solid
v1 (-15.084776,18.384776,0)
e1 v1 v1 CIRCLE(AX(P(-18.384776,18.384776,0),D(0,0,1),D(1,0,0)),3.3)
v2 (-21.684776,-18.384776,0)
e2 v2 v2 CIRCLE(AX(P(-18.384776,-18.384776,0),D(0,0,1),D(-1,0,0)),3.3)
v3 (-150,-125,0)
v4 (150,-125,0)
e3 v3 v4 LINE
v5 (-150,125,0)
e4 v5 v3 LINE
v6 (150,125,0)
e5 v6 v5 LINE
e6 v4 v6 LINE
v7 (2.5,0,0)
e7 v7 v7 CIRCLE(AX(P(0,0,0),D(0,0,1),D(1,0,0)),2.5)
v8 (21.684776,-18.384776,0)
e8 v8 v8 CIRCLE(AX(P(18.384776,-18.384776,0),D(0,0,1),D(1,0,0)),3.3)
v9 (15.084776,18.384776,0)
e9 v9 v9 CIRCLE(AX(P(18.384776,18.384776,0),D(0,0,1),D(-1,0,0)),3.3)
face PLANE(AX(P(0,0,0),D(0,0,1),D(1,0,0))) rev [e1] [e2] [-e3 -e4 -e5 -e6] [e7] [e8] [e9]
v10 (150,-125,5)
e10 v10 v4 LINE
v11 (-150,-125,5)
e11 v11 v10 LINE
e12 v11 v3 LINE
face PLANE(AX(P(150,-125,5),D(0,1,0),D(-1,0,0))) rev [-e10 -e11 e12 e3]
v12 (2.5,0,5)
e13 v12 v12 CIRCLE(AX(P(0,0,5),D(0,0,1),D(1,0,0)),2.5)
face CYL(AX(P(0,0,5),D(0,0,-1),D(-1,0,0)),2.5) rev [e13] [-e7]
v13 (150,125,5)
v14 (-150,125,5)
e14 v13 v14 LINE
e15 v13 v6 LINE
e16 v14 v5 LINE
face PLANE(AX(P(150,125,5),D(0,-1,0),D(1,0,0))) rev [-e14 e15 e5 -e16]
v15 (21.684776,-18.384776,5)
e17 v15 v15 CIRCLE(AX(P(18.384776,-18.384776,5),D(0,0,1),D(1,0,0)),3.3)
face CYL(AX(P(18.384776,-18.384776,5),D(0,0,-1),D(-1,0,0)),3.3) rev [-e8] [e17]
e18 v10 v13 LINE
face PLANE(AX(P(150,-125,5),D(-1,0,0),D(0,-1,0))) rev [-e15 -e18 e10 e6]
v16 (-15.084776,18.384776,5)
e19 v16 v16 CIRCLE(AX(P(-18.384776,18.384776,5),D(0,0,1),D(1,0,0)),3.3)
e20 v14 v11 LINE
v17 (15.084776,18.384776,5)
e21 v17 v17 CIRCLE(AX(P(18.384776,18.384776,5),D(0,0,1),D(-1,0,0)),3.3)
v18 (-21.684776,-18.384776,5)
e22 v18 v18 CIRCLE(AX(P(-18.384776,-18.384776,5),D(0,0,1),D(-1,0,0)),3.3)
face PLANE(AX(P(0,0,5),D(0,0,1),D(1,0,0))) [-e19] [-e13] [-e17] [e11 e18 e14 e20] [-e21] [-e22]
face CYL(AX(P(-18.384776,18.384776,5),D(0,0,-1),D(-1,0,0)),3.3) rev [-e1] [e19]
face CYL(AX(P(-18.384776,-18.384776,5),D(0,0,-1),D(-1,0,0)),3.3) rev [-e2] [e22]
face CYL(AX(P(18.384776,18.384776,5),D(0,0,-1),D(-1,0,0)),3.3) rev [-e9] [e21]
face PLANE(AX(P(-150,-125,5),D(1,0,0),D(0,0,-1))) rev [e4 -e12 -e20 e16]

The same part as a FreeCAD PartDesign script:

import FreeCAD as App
import Part
import Sketcher
Q = App.Units.Quantity


def add_polygon(sketch, points):
    """Adds a closed chain of lines whose ends are joined by coincident constraints."""
    first, n = sketch.GeometryCount, len(points)
    for a, b in zip(points, points[1:] + points[:1]):
        sketch.addGeometry(Part.LineSegment(App.Vector(*a, 0), App.Vector(*b, 0)), False)
    for i in range(n):
        sketch.addConstraint(Sketcher.Constraint("Coincident", first + i, 2, first + (i + 1) % n, 1))

doc = App.newDocument("Part")
params = doc.addObject("Spreadsheet::Sheet", "Params")
for row, (alias, value) in enumerate([
    ("sketch1_diameter", "5 mm"),
    ("sketch1_diameter2", "6.6 mm"),
    ("sketch1_width", "300 mm"),
    ("sketch1_height", "250 mm"),
    ("pad1_length", "5 mm"),
], start=1):
    params.set(f"A{row}", alias)
    params.set(f"B{row}", "=" + value)
    params.setAlias(f"B{row}", alias)

body = doc.addObject("PartDesign::Body", "Body")

sketch1 = doc.addObject("Sketcher::SketchObject", "Sketch")
body.addObject(sketch1)
sketch1.AttachmentSupport = (doc.XY_Plane, [""])
sketch1.MapMode = "FlatFace"
add_polygon(sketch1, [(-150, 125), (-150, -125), (150, -125), (150, 125)])
sketch1.addGeometry(Part.Circle(App.Vector(-18.4, -18.4, 0), App.Vector(0, 0, 1), 3.3), False)
sketch1.addGeometry(Part.Circle(App.Vector(18.4, -18.4, 0), App.Vector(0, 0, 1), 3.3), False)
sketch1.addGeometry(Part.Circle(App.Vector(-18.4, 18.4, 0), App.Vector(0, 0, 1), 3.3), False)
sketch1.addGeometry(Part.Circle(App.Vector(0, 0, 0), App.Vector(0, 0, 1), 2.5), False)
sketch1.addGeometry(Part.Circle(App.Vector(18.4, 18.4, 0), App.Vector(0, 0, 1), 3.3), False)
sketch1.addConstraint([
    Sketcher.Constraint("Vertical", 0),
    Sketcher.Constraint("Horizontal", 1),
    Sketcher.Constraint("Vertical", 2),
    Sketcher.Constraint("Horizontal", 3),
    Sketcher.Constraint("Coincident", 7, 3, -1, 1),
    Sketcher.Constraint("Equal", 4, 5),
    Sketcher.Constraint("Equal", 5, 6),
    Sketcher.Constraint("Equal", 6, 8),
    Sketcher.Constraint("Symmetric", 5, 3, 6, 3, -1, 1),
    Sketcher.Constraint("Symmetric", 4, 3, 8, 3, -1, 1),
    Sketcher.Constraint("Symmetric", 0, 2, 2, 2, -1, 1),
    Sketcher.Constraint("Symmetric", 4, 3, 5, 3, -2),
    Sketcher.Constraint("Diameter", 7, Q("5 mm")),
    Sketcher.Constraint("Diameter", 4, Q("6.6 mm")),
    Sketcher.Constraint("DistanceX", 1, 1, 1, 2, Q("300 mm")),
    Sketcher.Constraint("DistanceY", 0, 2, 0, 1, Q("250 mm")),
    Sketcher.Constraint("DistanceX", 4, 3, -1, 1, Q("18.384776 mm")),
    Sketcher.Constraint("DistanceY", 4, 3, -1, 1, Q("18.384776 mm")),
])
sketch1.setExpression("Constraints[16]", "Params.sketch1_diameter")
sketch1.setExpression("Constraints[17]", "Params.sketch1_diameter2")
sketch1.setExpression("Constraints[18]", "Params.sketch1_width")
sketch1.setExpression("Constraints[19]", "Params.sketch1_height")
pad1 = doc.addObject("PartDesign::Pad", "Pad")
body.addObject(pad1)
pad1.Profile = sketch1
pad1.setExpression("Length", "Params.pad1_length")

doc.recompute()
